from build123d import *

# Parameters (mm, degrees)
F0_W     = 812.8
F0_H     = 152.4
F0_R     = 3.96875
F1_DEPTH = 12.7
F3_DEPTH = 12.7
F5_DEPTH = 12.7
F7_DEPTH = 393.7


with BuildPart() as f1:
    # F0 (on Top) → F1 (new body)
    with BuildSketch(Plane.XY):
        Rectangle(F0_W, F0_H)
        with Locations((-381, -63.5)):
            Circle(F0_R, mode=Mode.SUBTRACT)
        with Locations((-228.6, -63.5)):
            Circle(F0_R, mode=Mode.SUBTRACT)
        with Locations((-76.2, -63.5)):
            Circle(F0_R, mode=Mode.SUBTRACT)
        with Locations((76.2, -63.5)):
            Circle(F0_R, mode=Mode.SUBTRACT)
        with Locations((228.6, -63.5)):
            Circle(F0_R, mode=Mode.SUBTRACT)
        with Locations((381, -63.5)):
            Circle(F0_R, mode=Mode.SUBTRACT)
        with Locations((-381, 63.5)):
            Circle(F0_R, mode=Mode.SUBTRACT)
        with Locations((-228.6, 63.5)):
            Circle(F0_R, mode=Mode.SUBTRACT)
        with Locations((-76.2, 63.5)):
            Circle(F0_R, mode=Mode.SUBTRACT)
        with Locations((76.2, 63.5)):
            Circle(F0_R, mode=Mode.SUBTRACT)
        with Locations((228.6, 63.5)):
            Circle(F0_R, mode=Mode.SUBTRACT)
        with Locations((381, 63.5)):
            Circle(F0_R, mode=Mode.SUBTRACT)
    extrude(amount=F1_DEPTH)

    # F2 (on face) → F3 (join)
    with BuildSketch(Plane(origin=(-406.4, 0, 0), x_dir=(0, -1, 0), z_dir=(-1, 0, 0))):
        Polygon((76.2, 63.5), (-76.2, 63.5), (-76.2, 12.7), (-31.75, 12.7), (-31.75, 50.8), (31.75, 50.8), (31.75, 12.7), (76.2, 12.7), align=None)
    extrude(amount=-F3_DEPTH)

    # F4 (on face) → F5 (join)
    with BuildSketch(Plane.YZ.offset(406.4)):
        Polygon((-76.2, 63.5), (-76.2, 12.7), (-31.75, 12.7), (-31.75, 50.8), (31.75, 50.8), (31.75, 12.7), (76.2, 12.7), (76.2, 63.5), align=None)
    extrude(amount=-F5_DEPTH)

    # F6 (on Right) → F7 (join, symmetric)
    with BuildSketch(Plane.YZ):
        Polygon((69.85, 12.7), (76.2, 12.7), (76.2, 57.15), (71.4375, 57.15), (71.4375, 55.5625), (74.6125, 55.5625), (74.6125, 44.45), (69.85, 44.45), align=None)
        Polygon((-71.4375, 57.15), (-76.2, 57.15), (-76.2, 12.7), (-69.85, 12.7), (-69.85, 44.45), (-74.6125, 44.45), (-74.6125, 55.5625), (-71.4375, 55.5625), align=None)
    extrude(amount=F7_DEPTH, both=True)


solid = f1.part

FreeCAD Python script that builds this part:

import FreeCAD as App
import Part
import Sketcher

V = App.Vector
Q = App.Units.Quantity

doc = App.newDocument("Part")
body = doc.addObject("PartDesign::Body", "Body")

# Sketch on XY plane
sketch1 = body.newObject("Sketcher::SketchObject", "Sketch")
sketch1.AttachmentSupport = (doc.getObject("XY_Plane"), [""])
sketch1.MapMode = "FlatFace"
sketch1.addGeometry([
    Part.LineSegment(V(-406.4, 76.2, 0), V(-406.4, -76.2, 0)),  # 0
    Part.LineSegment(V(-406.4, -76.2, 0), V(406.4, -76.2, 0)),  # 1
    Part.LineSegment(V(406.4, -76.2, 0), V(406.4, 76.2, 0)),  # 2
    Part.LineSegment(V(406.4, 76.2, 0), V(-406.4, 76.2, 0)),  # 3
    Part.Circle(V(-381, -63.5, 0), V(0, 0, 1), 4),  # 4
    Part.Circle(V(-228.6, -63.5, 0), V(0, 0, 1), 4),  # 5
    Part.Circle(V(-76.2, -63.5, 0), V(0, 0, 1), 4),  # 6
    Part.Circle(V(76.2, -63.5, 0), V(0, 0, 1), 4),  # 7
    Part.Circle(V(228.6, -63.5, 0), V(0, 0, 1), 4),  # 8
    Part.Circle(V(381, -63.5, 0), V(0, 0, 1), 4),  # 9
    Part.Circle(V(-381, 63.5, 0), V(0, 0, 1), 4),  # 10
    Part.Circle(V(-228.6, 63.5, 0), V(0, 0, 1), 4),  # 11
    Part.Circle(V(-76.2, 63.5, 0), V(0, 0, 1), 4),  # 12
    Part.Circle(V(76.2, 63.5, 0), V(0, 0, 1), 4),  # 13
    Part.Circle(V(228.6, 63.5, 0), V(0, 0, 1), 4),  # 14
    Part.Circle(V(381, 63.5, 0), V(0, 0, 1), 4),  # 15
], False)
sketch1.addConstraint([
    Sketcher.Constraint("Coincident", 0, 2, 1, 1),
    Sketcher.Constraint("Coincident", 1, 2, 2, 1),
    Sketcher.Constraint("Coincident", 2, 2, 3, 1),
    Sketcher.Constraint("Coincident", 3, 2, 0, 1),
    Sketcher.Constraint("Vertical", 0),
    Sketcher.Constraint("Horizontal", 1),
    Sketcher.Constraint("Vertical", 2),
    Sketcher.Constraint("Horizontal", 3),
    Sketcher.Constraint("Equal", 4, 5),
    Sketcher.Constraint("Equal", 5, 6),
    Sketcher.Constraint("Equal", 6, 7),
    Sketcher.Constraint("Equal", 7, 8),
    Sketcher.Constraint("Equal", 8, 9),
    Sketcher.Constraint("Equal", 9, 10),
    Sketcher.Constraint("Equal", 10, 11),
    Sketcher.Constraint("Equal", 11, 12),
    Sketcher.Constraint("Equal", 12, 13),
    Sketcher.Constraint("Equal", 13, 14),
    Sketcher.Constraint("Equal", 14, 15),
    Sketcher.Constraint("Symmetric", 9, 3, 10, 3, -1, 1),
    Sketcher.Constraint("Symmetric", 8, 3, 11, 3, -1, 1),
    Sketcher.Constraint("Symmetric", 7, 3, 12, 3, -1, 1),
    Sketcher.Constraint("Symmetric", 6, 3, 13, 3, -1, 1),
    Sketcher.Constraint("Symmetric", 5, 3, 14, 3, -1, 1),
    Sketcher.Constraint("Symmetric", 4, 3, 15, 3, -1, 1),
    Sketcher.Constraint("Symmetric", 0, 2, 2, 2, -1, 1),
    Sketcher.Constraint("Symmetric", 6, 3, 7, 3, -2),
    Sketcher.Constraint("Symmetric", 5, 3, 8, 3, -2),
    Sketcher.Constraint("Symmetric", 4, 3, 9, 3, -2),
    Sketcher.Constraint("Horizontal", 4, 3, 5, 3),
    Sketcher.Constraint("Horizontal", 5, 3, 6, 3),
    Sketcher.Constraint("DistanceX", 1, 1, 1, 2, Q("32 in")),
    Sketcher.Constraint("DistanceY", 0, 2, 0, 1, Q("6 in")),
    Sketcher.Constraint("Diameter", 4, Q("0.3125 in")),
    Sketcher.Constraint("DistanceX", 4, 3, -1, 1, Q("15 in")),
    Sketcher.Constraint("DistanceX", 5, 3, -1, 1, Q("9 in")),
    Sketcher.Constraint("DistanceX", 6, 3, -1, 1, Q("3 in")),
    Sketcher.Constraint("DistanceY", 4, 3, 10, 3, Q("5 in")),
])
pad1 = body.newObject("PartDesign::Pad", "Pad")
pad1.Profile = sketch1
pad1.Length = Q("0.5 in")

# Sketch on YZ plane
sketch2 = body.newObject("Sketcher::SketchObject", "Sketch001")
sketch2.AttachmentSupport = (doc.getObject("YZ_Plane"), [""])
sketch2.MapMode = "FlatFace"
sketch2.AttachmentOffset = App.Placement(V(0, 0, -16 * 25.4), App.Rotation())
sketch2.addGeometry([
    Part.LineSegment(V(-76, 64, 0), V(76, 64, 0)),  # 0
    Part.LineSegment(V(76, 64, 0), V(76, 13, 0)),  # 1
    Part.LineSegment(V(76, 13, 0), V(32, 13, 0)),  # 2
    Part.LineSegment(V(32, 13, 0), V(32, 51, 0)),  # 3
    Part.LineSegment(V(32, 51, 0), V(-32, 51, 0)),  # 4
    Part.LineSegment(V(-32, 51, 0), V(-32, 13, 0)),  # 5
    Part.LineSegment(V(-32, 13, 0), V(-76, 13, 0)),  # 6
    Part.LineSegment(V(-76, 13, 0), V(-76, 64, 0)),  # 7
], False)
sketch2.addConstraint([
    Sketcher.Constraint("Coincident", 0, 2, 1, 1),
    Sketcher.Constraint("Coincident", 1, 2, 2, 1),
    Sketcher.Constraint("Coincident", 2, 2, 3, 1),
    Sketcher.Constraint("Coincident", 3, 2, 4, 1),
    Sketcher.Constraint("Coincident", 4, 2, 5, 1),
    Sketcher.Constraint("Coincident", 5, 2, 6, 1),
    Sketcher.Constraint("Coincident", 6, 2, 7, 1),
    Sketcher.Constraint("Coincident", 7, 2, 0, 1),
    Sketcher.Constraint("Horizontal", 0),
    Sketcher.Constraint("Vertical", 1),
    Sketcher.Constraint("Horizontal", 2),
    Sketcher.Constraint("Vertical", 3),
    Sketcher.Constraint("Horizontal", 4),
    Sketcher.Constraint("Vertical", 5),
    Sketcher.Constraint("Horizontal", 6),
    Sketcher.Constraint("Vertical", 7),
    Sketcher.Constraint("Symmetric", 2, 2, 5, 2, -2),
    Sketcher.Constraint("Equal", 2, 6),
    Sketcher.Constraint("DistanceX", 0, 1, 0, 2, Q("6 in")),
    Sketcher.Constraint("DistanceY", 1, 2, 1, 1, Q("2 in")),
    Sketcher.Constraint("DistanceX", 4, 2, 4, 1, Q("2.5 in")),
    Sketcher.Constraint("DistanceY", 3, 1, 3, 2, Q("1.5 in")),
    Sketcher.Constraint("DistanceY", -1, 1, 3, 2, Q("2 in")),
])
pad2 = body.newObject("PartDesign::Pad", "Pad001")
pad2.Profile = sketch2
pad2.Length = Q("0.5 in")

# Sketch on YZ plane
sketch3 = body.newObject("Sketcher::SketchObject", "Sketch002")
sketch3.AttachmentSupport = (doc.getObject("YZ_Plane"), [""])
sketch3.MapMode = "FlatFace"
sketch3.AttachmentOffset = App.Placement(V(0, 0, 16 * 25.4), App.Rotation())
sketch3.addGeometry([
    Part.LineSegment(V(-76, 64, 0), V(-76, 13, 0)),  # 0
    Part.LineSegment(V(-76, 13, 0), V(-32, 13, 0)),  # 1
    Part.LineSegment(V(-32, 13, 0), V(-32, 51, 0)),  # 2
    Part.LineSegment(V(-32, 51, 0), V(32, 51, 0)),  # 3
    Part.LineSegment(V(32, 51, 0), V(32, 13, 0)),  # 4
    Part.LineSegment(V(32, 13, 0), V(76, 13, 0)),  # 5
    Part.LineSegment(V(76, 13, 0), V(76, 64, 0)),  # 6
    Part.LineSegment(V(76, 64, 0), V(-76, 64, 0)),  # 7
], False)
sketch3.addConstraint([
    Sketcher.Constraint("Coincident", 0, 2, 1, 1),
    Sketcher.Constraint("Coincident", 1, 2, 2, 1),
    Sketcher.Constraint("Coincident", 2, 2, 3, 1),
    Sketcher.Constraint("Coincident", 3, 2, 4, 1),
    Sketcher.Constraint("Coincident", 4, 2, 5, 1),
    Sketcher.Constraint("Coincident", 5, 2, 6, 1),
    Sketcher.Constraint("Coincident", 6, 2, 7, 1),
    Sketcher.Constraint("Coincident", 7, 2, 0, 1),
    Sketcher.Constraint("Vertical", 0),
    Sketcher.Constraint("Horizontal", 1),
    Sketcher.Constraint("Vertical", 2),
    Sketcher.Constraint("Horizontal", 3),
    Sketcher.Constraint("Vertical", 4),
    Sketcher.Constraint("Horizontal", 5),
    Sketcher.Constraint("Vertical", 6),
    Sketcher.Constraint("Horizontal", 7),
    Sketcher.Constraint("Symmetric", 1, 2, 4, 2, -2),
    Sketcher.Constraint("Equal", 1, 5),
    Sketcher.Constraint("DistanceX", 7, 2, 7, 1, Q("6 in")),
    Sketcher.Constraint("DistanceY", 0, 2, 0, 1, Q("2 in")),
    Sketcher.Constraint("DistanceX", 3, 1, 3, 2, Q("2.5 in")),
    Sketcher.Constraint("DistanceY", 2, 1, 2, 2, Q("1.5 in")),
    Sketcher.Constraint("DistanceY", -1, 1, 2, 2, Q("2 in")),
])
pad3 = body.newObject("PartDesign::Pad", "Pad002")
pad3.Profile = sketch3
pad3.Length = Q("0.5 in")
pad3.Reversed = True

# Sketch on YZ plane
sketch4 = body.newObject("Sketcher::SketchObject", "Sketch003")
sketch4.AttachmentSupport = (doc.getObject("YZ_Plane"), [""])
sketch4.MapMode = "FlatFace"
sketch4.addGeometry([
    Part.LineSegment(V(69.8, 12.7, 0), V(76.2, 12.7, 0)),  # 0
    Part.LineSegment(V(76.2, 12.7, 0), V(76.2, 57.1, 0)),  # 1
    Part.LineSegment(V(76.2, 57.1, 0), V(71.4, 57.1, 0)),  # 2
    Part.LineSegment(V(71.4, 57.1, 0), V(71.4, 55.6, 0)),  # 3
    Part.LineSegment(V(71.4, 55.6, 0), V(74.6, 55.6, 0)),  # 4
    Part.LineSegment(V(74.6, 55.6, 0), V(74.6, 44.5, 0)),  # 5
    Part.LineSegment(V(74.6, 44.5, 0), V(69.8, 44.5, 0)),  # 6
    Part.LineSegment(V(69.8, 44.5, 0), V(69.8, 12.7, 0)),  # 7
    Part.LineSegment(V(-71.4, 57.1, 0), V(-76.2, 57.1, 0)),  # 8
    Part.LineSegment(V(-76.2, 57.1, 0), V(-76.2, 12.7, 0)),  # 9
    Part.LineSegment(V(-76.2, 12.7, 0), V(-69.8, 12.7, 0)),  # 10
    Part.LineSegment(V(-69.8, 12.7, 0), V(-69.8, 44.5, 0)),  # 11
    Part.LineSegment(V(-69.8, 44.5, 0), V(-74.6, 44.5, 0)),  # 12
    Part.LineSegment(V(-74.6, 44.5, 0), V(-74.6, 55.6, 0)),  # 13
    Part.LineSegment(V(-74.6, 55.6, 0), V(-71.4, 55.6, 0)),  # 14
    Part.LineSegment(V(-71.4, 55.6, 0), V(-71.4, 57.1, 0)),  # 15
], False)
sketch4.addConstraint([
    Sketcher.Constraint("Coincident", 0, 2, 1, 1),
    Sketcher.Constraint("Coincident", 1, 2, 2, 1),
    Sketcher.Constraint("Coincident", 2, 2, 3, 1),
    Sketcher.Constraint("Coincident", 3, 2, 4, 1),
    Sketcher.Constraint("Coincident", 4, 2, 5, 1),
    Sketcher.Constraint("Coincident", 5, 2, 6, 1),
    Sketcher.Constraint("Coincident", 6, 2, 7, 1),
    Sketcher.Constraint("Coincident", 7, 2, 0, 1),
    Sketcher.Constraint("Coincident", 8, 2, 9, 1),
    Sketcher.Constraint("Coincident", 9, 2, 10, 1),
    Sketcher.Constraint("Coincident", 10, 2, 11, 1),
    Sketcher.Constraint("Coincident", 11, 2, 12, 1),
    Sketcher.Constraint("Coincident", 12, 2, 13, 1),
    Sketcher.Constraint("Coincident", 13, 2, 14, 1),
    Sketcher.Constraint("Coincident", 14, 2, 15, 1),
    Sketcher.Constraint("Coincident", 15, 2, 8, 1),
    Sketcher.Constraint("Horizontal", 0),
    Sketcher.Constraint("Vertical", 1),
    Sketcher.Constraint("Horizontal", 2),
    Sketcher.Constraint("Vertical", 3),
    Sketcher.Constraint("Horizontal", 4),
    Sketcher.Constraint("Vertical", 5),
    Sketcher.Constraint("Horizontal", 6),
    Sketcher.Constraint("Vertical", 7),
    Sketcher.Constraint("Horizontal", 8),
    Sketcher.Constraint("Vertical", 9),
    Sketcher.Constraint("Horizontal", 10),
    Sketcher.Constraint("Vertical", 11),
    Sketcher.Constraint("Horizontal", 12),
    Sketcher.Constraint("Vertical", 13),
    Sketcher.Constraint("Horizontal", 14),
    Sketcher.Constraint("Vertical", 15),
    Sketcher.Constraint("Symmetric", 1, 2, 8, 2, -2),
    Sketcher.Constraint("Symmetric", 7, 2, 10, 2, -2),
    Sketcher.Constraint("Symmetric", 5, 2, 12, 2, -2),
    Sketcher.Constraint("Symmetric", 3, 2, 14, 2, -2),
    Sketcher.Constraint("Equal", 2, 6),
    Sketcher.Constraint("DistanceX", -1, 1, 0, 2, Q("3 in")),
    Sketcher.Constraint("DistanceX", 0, 1, 0, 2, Q("0.25 in")),
    Sketcher.Constraint("DistanceY", 1, 1, 1, 2, Q("1.75 in")),
    Sketcher.Constraint("DistanceY", 7, 2, 7, 1, Q("1.25 in")),
    Sketcher.Constraint("DistanceY", -1, 1, 0, 2, Q("0.5 in")),
    Sketcher.Constraint("DistanceX", 2, 2, 2, 1, Q("0.1875 in")),
    Sketcher.Constraint("DistanceY", 3, 2, 3, 1, Q("0.0625 in")),
])
pad4 = body.newObject("PartDesign::Pad", "Pad003")
pad4.Profile = sketch4
pad4.Length = Q("31 in")
pad4.Midplane = True

doc.recompute()
